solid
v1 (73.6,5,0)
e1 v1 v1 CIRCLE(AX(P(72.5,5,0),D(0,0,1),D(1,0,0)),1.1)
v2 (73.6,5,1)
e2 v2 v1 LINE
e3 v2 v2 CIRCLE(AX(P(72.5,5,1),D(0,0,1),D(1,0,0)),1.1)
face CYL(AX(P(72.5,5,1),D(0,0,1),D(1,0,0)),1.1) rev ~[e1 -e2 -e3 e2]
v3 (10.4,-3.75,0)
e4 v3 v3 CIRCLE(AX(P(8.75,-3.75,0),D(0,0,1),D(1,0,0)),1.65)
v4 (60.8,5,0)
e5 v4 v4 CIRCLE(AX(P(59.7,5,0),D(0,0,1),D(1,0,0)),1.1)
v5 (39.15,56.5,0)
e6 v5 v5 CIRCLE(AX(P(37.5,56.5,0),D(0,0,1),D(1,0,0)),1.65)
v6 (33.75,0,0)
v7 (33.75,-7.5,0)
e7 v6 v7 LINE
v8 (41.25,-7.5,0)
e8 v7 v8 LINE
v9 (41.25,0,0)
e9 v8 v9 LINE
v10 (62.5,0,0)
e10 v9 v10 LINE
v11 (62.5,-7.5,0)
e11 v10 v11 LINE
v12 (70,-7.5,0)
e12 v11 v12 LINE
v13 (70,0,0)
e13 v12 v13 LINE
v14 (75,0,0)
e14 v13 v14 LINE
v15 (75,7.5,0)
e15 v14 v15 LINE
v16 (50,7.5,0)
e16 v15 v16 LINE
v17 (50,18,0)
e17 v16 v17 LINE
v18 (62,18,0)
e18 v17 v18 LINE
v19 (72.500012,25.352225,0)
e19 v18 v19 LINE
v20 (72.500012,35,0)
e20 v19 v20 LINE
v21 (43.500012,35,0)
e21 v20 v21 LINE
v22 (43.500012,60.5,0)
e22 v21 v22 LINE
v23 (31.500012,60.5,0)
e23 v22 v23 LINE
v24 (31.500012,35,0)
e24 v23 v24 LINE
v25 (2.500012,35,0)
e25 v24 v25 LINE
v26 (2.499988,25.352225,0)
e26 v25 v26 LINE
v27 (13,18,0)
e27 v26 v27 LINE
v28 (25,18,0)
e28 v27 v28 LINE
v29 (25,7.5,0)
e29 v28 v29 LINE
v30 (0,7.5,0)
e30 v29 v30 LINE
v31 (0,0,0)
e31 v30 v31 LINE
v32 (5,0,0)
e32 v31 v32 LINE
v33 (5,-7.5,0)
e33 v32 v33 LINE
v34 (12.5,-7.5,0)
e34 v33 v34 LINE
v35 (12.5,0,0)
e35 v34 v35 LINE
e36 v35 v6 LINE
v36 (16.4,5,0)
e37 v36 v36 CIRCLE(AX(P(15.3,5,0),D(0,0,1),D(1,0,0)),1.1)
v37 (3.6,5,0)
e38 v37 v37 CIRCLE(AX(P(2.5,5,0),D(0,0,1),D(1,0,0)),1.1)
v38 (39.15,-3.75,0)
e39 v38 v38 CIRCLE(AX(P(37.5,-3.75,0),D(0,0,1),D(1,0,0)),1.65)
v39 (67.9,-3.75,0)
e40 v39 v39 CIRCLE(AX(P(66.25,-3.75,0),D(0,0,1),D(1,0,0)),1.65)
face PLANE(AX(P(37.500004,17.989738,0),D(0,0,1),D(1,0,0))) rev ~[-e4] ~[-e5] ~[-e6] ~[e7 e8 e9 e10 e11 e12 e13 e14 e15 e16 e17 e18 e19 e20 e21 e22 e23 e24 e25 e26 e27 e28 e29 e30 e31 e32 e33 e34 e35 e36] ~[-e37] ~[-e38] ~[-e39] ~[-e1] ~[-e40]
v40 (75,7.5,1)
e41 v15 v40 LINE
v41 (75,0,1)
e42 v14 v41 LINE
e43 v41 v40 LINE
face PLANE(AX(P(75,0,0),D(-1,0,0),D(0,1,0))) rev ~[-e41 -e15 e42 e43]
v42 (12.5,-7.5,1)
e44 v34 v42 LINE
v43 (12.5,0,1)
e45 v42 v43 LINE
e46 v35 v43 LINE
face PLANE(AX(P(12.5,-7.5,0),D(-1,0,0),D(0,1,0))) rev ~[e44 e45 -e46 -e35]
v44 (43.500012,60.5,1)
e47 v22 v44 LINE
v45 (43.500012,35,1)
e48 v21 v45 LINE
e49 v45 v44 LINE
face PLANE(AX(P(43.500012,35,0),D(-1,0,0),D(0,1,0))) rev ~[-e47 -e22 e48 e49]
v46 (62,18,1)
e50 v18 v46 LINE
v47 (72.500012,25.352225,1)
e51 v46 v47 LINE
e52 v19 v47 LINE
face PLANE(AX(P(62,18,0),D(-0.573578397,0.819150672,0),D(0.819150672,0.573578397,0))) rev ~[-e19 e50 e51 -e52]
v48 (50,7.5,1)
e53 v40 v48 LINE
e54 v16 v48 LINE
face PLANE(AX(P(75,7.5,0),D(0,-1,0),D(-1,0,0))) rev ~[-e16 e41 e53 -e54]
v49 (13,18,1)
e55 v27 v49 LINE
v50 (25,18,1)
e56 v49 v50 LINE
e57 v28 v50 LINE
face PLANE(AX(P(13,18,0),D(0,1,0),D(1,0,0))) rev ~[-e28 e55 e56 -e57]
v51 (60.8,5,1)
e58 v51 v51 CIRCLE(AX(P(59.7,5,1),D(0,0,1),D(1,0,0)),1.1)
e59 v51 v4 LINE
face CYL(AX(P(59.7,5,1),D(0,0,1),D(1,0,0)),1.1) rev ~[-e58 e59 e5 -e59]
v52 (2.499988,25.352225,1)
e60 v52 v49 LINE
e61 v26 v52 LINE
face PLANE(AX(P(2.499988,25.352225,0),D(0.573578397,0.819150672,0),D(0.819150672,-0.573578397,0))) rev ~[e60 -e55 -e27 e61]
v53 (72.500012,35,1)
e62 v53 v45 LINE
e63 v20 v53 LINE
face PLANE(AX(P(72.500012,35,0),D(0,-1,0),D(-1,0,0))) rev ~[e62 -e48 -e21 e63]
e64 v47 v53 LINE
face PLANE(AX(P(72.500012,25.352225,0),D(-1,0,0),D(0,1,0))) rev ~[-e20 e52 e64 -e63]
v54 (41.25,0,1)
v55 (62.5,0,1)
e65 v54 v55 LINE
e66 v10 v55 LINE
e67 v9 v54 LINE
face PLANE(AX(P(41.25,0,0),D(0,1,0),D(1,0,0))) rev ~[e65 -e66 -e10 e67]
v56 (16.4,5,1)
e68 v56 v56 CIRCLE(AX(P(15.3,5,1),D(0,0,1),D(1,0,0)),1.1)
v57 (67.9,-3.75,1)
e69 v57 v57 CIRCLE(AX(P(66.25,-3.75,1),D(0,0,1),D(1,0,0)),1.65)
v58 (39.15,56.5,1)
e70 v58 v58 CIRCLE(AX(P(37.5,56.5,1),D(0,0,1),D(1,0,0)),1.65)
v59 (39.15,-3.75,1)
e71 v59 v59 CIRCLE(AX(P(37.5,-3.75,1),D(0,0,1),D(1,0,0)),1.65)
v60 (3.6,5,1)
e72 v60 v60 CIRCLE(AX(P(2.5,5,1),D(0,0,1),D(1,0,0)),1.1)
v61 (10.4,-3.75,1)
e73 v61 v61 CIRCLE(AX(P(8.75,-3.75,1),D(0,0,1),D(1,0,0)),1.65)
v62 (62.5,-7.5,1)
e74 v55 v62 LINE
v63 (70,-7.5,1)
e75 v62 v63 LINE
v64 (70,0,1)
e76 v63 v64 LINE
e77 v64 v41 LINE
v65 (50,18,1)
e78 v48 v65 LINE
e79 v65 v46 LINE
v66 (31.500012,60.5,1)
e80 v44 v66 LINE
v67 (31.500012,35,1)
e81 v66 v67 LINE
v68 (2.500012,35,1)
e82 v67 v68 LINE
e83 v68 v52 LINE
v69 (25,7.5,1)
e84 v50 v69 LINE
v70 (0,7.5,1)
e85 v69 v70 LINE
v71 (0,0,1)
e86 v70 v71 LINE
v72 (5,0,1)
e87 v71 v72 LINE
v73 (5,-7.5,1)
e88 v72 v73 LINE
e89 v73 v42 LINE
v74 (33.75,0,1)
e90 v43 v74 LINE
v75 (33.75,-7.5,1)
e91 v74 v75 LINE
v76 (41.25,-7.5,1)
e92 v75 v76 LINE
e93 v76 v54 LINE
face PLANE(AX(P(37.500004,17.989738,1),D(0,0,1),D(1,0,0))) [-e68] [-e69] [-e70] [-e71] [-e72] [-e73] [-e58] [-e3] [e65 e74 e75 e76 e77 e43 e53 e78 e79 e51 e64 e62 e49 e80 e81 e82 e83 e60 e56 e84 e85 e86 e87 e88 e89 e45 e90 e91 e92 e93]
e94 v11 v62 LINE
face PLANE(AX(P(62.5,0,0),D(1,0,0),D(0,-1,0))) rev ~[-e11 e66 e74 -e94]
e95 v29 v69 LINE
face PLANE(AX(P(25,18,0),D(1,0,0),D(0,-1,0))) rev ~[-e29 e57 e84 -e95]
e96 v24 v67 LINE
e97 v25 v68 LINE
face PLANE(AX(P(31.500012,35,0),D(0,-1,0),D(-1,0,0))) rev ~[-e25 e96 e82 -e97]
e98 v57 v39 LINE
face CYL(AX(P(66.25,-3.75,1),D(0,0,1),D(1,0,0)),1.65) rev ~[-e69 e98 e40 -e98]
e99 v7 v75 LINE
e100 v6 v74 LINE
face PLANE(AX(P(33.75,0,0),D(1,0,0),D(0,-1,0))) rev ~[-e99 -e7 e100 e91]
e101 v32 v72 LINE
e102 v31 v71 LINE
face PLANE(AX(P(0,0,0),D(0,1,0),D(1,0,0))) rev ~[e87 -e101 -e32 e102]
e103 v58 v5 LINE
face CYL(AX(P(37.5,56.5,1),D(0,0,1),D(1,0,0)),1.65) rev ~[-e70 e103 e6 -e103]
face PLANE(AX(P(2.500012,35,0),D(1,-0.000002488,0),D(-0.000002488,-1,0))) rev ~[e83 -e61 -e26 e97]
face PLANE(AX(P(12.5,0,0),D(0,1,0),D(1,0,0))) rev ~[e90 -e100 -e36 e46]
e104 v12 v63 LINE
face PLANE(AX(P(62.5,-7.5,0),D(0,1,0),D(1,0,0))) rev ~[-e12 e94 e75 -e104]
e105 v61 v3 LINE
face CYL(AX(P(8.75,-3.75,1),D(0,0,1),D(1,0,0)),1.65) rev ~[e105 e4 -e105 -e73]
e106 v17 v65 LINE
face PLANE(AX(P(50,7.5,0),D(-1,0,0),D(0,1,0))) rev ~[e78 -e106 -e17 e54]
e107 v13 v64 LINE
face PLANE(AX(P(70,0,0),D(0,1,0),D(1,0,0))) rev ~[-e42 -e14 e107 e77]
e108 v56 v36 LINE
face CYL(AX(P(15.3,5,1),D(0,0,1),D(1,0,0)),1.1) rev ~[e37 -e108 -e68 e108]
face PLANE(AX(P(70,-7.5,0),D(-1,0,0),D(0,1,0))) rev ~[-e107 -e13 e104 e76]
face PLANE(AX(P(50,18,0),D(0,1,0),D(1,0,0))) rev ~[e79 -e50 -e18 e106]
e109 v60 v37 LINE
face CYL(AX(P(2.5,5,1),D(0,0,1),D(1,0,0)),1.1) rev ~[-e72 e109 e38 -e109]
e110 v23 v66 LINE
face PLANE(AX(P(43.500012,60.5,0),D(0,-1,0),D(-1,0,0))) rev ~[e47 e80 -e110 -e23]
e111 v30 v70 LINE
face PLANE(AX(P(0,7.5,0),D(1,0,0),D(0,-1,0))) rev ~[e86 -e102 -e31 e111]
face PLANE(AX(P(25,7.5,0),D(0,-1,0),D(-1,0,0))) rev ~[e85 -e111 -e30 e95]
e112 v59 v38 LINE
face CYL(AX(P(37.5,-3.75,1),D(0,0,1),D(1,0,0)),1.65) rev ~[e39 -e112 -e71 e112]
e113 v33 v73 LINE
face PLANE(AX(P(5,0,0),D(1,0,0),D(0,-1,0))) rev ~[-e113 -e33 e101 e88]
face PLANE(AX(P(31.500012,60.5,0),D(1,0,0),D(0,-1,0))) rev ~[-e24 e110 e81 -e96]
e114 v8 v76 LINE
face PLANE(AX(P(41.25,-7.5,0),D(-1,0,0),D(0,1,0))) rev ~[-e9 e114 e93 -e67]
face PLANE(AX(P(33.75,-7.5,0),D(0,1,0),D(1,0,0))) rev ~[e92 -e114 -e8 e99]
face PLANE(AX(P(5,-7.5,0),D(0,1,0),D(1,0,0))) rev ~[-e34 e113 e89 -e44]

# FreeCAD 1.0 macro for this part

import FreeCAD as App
import Part
import Sketcher
Q = App.Units.Quantity


def add_polygon(sketch, points):
    """Adds a closed chain of lines whose ends are joined by coincident constraints."""
    first, n = sketch.GeometryCount, len(points)
    for a, b in zip(points, points[1:] + points[:1]):
        sketch.addGeometry(Part.LineSegment(App.Vector(*a, 0), App.Vector(*b, 0)), False)
    for i in range(n):
        sketch.addConstraint(Sketcher.Constraint("Coincident", first + i, 2, first + (i + 1) % n, 1))

doc = App.newDocument("Part")
body = doc.addObject("PartDesign::Body", "Body")

# Sketch on XY plane
sketch1 = body.newObject("Sketcher::SketchObject", "Sketch")
sketch1.AttachmentSupport = (doc.getObject("XY_Plane"), [""])
sketch1.MapMode = "FlatFace"
add_polygon(sketch1, [(0, 0), (5, 0), (5, -8), (12, -8), (12, 0), (34, 0), (34, -8), (41, -8), (41, 0), (62, 0), (62, -8), (70, -8), (70, 0), (75, 0), (75, 8), (50, 8), (50, 18), (62, 18), (73, 25), (73, 35), (44, 35), (44, 60), (32, 60), (32, 35), (3, 35), (2, 25), (13, 18), (25, 18), (25, 8), (0, 8)])  # lines 0-29
sketch1.addConstraint(Sketcher.Constraint("Horizontal", 0))
sketch1.addConstraint(Sketcher.Constraint("Vertical", 1))
sketch1.addConstraint(Sketcher.Constraint("Horizontal", 2))
sketch1.addConstraint(Sketcher.Constraint("Vertical", 3))
sketch1.addConstraint(Sketcher.Constraint("Horizontal", 4))
sketch1.addConstraint(Sketcher.Constraint("Vertical", 5))
sketch1.addConstraint(Sketcher.Constraint("Horizontal", 6))
sketch1.addConstraint(Sketcher.Constraint("Vertical", 7))
sketch1.addConstraint(Sketcher.Constraint("Horizontal", 8))
sketch1.addConstraint(Sketcher.Constraint("Vertical", 9))
sketch1.addConstraint(Sketcher.Constraint("Horizontal", 10))
sketch1.addConstraint(Sketcher.Constraint("Vertical", 11))
sketch1.addConstraint(Sketcher.Constraint("Horizontal", 12))
sketch1.addConstraint(Sketcher.Constraint("Vertical", 13))
sketch1.addConstraint(Sketcher.Constraint("Horizontal", 14))
sketch1.addConstraint(Sketcher.Constraint("Vertical", 15))
sketch1.addConstraint(Sketcher.Constraint("Horizontal", 16))
sketch1.addConstraint(Sketcher.Constraint("Vertical", 18))
sketch1.addConstraint(Sketcher.Constraint("Horizontal", 19))
sketch1.addConstraint(Sketcher.Constraint("Vertical", 20))
sketch1.addConstraint(Sketcher.Constraint("Horizontal", 21))
sketch1.addConstraint(Sketcher.Constraint("Vertical", 22))
sketch1.addConstraint(Sketcher.Constraint("Horizontal", 23))
sketch1.addConstraint(Sketcher.Constraint("Horizontal", 26))
sketch1.addConstraint(Sketcher.Constraint("Vertical", 27))
sketch1.addConstraint(Sketcher.Constraint("Horizontal", 28))
sketch1.addConstraint(Sketcher.Constraint("Vertical", 29))
sketch1.addConstraint(Sketcher.Constraint("Coincident", 29, 2, -1, 1))
sketch1.addConstraint(Sketcher.Constraint("PointOnObject", 3, 2, -1))
sketch1.addConstraint(Sketcher.Constraint("PointOnObject", 7, 2, -1))
sketch1.addConstraint(Sketcher.Constraint("PointOnObject", 11, 2, -1))
sketch1.addConstraint(Sketcher.Constraint("Horizontal", 2, 2, 5, 2))
sketch1.addConstraint(Sketcher.Constraint("Horizontal", 6, 2, 9, 2))
sketch1.addConstraint(Sketcher.Constraint("Horizontal", 19, 2, 22, 2))
sketch1.addConstraint(Sketcher.Constraint("Horizontal", 17, 2, 24, 2))
sketch1.addConstraint(Sketcher.Constraint("Horizontal", 16, 2, 25, 2))
sketch1.addConstraint(Sketcher.Constraint("Horizontal", 14, 2, 27, 2))
sketch1.addConstraint(Sketcher.Constraint("Equal", 2, 6))
sketch1.addConstraint(Sketcher.Constraint("Equal", 4, 8))
sketch1.addConstraint(Sketcher.Constraint("Equal", 6, 10))
sketch1.addConstraint(Sketcher.Constraint("Equal", 0, 12))
sketch1.addConstraint(Sketcher.Constraint("Equal", 16, 21))
sketch1.addConstraint(Sketcher.Constraint("Equal", 19, 23))
sketch1.addConstraint(Sketcher.Constraint("Equal", 21, 26))
sketch1.addConstraint(Sketcher.Constraint("Equal", 14, 28))
sketch1.addConstraint(Sketcher.Constraint("Equal", 10, 1))
sketch1.addConstraint(Sketcher.Constraint("Equal", 11, 13))
sketch1.addConstraint(Sketcher.Constraint("Equal", 17, 25))
sketch1.addConstraint(Sketcher.Constraint("DistanceX", 0, 1, 0, 2, Q("5 mm")))
sketch1.addConstraint(Sketcher.Constraint("DistanceX", 14, 2, 14, 1, Q("25 mm")))
sketch1.addConstraint(Sketcher.Constraint("DistanceX", 16, 1, 16, 2, Q("12 mm")))
sketch1.addConstraint(Sketcher.Constraint("DistanceX", 19, 2, 19, 1, Q("29 mm")))
sketch1.addConstraint(Sketcher.Constraint("DistanceX", 2, 1, 2, 2, Q("7.5 mm")))
sketch1.addConstraint(Sketcher.Constraint("DistanceY", 15, 1, 15, 2, Q("10.5 mm")))
sketch1.addConstraint(Sketcher.Constraint("DistanceY", 20, 1, 20, 2, Q("25.5 mm")))
sketch1.addConstraint(Sketcher.Constraint("DistanceX", -1, 1, 10, 2, Q("70 mm")))
sketch1.addConstraint(Sketcher.Constraint("DistanceY", -1, 1, 18, 2, Q("35 mm")))
sketch1.addConstraint(Sketcher.Constraint("Distance", 17, Q("12.818169 mm")))
sketch1.addConstraint(Sketcher.Constraint("DistanceY", 18, 1, 18, 2, Q("9.647775 mm")))
pad1 = body.newObject("PartDesign::Pad", "Pad")
pad1.Profile = sketch1
pad1.Length = 1

# Sketch on XY plane
sketch2 = body.newObject("Sketcher::SketchObject", "Sketch001")
sketch2.AttachmentSupport = (doc.getObject("XY_Plane"), [""])
sketch2.MapMode = "FlatFace"
sketch2.AttachmentOffset = App.Placement(App.Vector(0, 0, 1), App.Rotation())
sketch2.addGeometry(Part.Circle(App.Vector(2.5, 5, 0), App.Vector(0, 0, 1), 1.1), False)
sketch2.addGeometry(Part.Circle(App.Vector(15.3, 5, 0), App.Vector(0, 0, 1), 1.1), False)
sketch2.addGeometry(Part.Circle(App.Vector(59.7, 5, 0), App.Vector(0, 0, 1), 1.1), False)
sketch2.addGeometry(Part.Circle(App.Vector(72.5, 5, 0), App.Vector(0, 0, 1), 1.1), False)
sketch2.addConstraint(Sketcher.Constraint("Equal", 0, 1))
sketch2.addConstraint(Sketcher.Constraint("Equal", 1, 2))
sketch2.addConstraint(Sketcher.Constraint("Equal", 2, 3))
sketch2.addConstraint(Sketcher.Constraint("Horizontal", 0, 3, 1, 3))
sketch2.addConstraint(Sketcher.Constraint("Horizontal", 1, 3, 2, 3))
sketch2.addConstraint(Sketcher.Constraint("Horizontal", 2, 3, 3, 3))
sketch2.addConstraint(Sketcher.Constraint("Diameter", 0, Q("2.2 mm")))
sketch2.addConstraint(Sketcher.Constraint("DistanceY", -1, 1, 0, 3, Q("5 mm")))
sketch2.addConstraint(Sketcher.Constraint("DistanceX", 0, 3, 3, 3, Q("70 mm")))
sketch2.addConstraint(Sketcher.Constraint("DistanceX", -1, 1, 0, 3, Q("2.5 mm")))
sketch2.addConstraint(Sketcher.Constraint("DistanceX", -1, 1, 1, 3, Q("15.3 mm")))
sketch2.addConstraint(Sketcher.Constraint("DistanceX", -1, 1, 2, 3, Q("59.7 mm")))
pocket1 = body.newObject("PartDesign::Pocket", "Pocket")
pocket1.Profile = sketch2
pocket1.Length = 5

# Sketch on XY plane
sketch3 = body.newObject("Sketcher::SketchObject", "Sketch002")
sketch3.AttachmentSupport = (doc.getObject("XY_Plane"), [""])
sketch3.MapMode = "FlatFace"
sketch3.AttachmentOffset = App.Placement(App.Vector(0, 0, 1), App.Rotation())
sketch3.addGeometry(Part.Circle(App.Vector(8.8, -3.8, 0), App.Vector(0, 0, 1), 1.6), False)
sketch3.addGeometry(Part.Circle(App.Vector(37.5, -3.8, 0), App.Vector(0, 0, 1), 1.6), False)
sketch3.addGeometry(Part.Circle(App.Vector(66.2, -3.8, 0), App.Vector(0, 0, 1), 1.6), False)
sketch3.addGeometry(Part.Circle(App.Vector(37.5, 56.5, 0), App.Vector(0, 0, 1), 1.6), False)
sketch3.addConstraint(Sketcher.Constraint("Equal", 0, 1))
sketch3.addConstraint(Sketcher.Constraint("Equal", 1, 2))
sketch3.addConstraint(Sketcher.Constraint("Equal", 2, 3))
sketch3.addConstraint(Sketcher.Constraint("Horizontal", 0, 3, 1, 3))
sketch3.addConstraint(Sketcher.Constraint("Horizontal", 1, 3, 2, 3))
sketch3.addConstraint(Sketcher.Constraint("Vertical", 1, 3, 3, 3))
sketch3.addConstraint(Sketcher.Constraint("Diameter", 0, Q("3.3 mm")))
sketch3.addConstraint(Sketcher.Constraint("DistanceX", -1, 1, 1, 3, Q("37.5 mm")))
sketch3.addConstraint(Sketcher.Constraint("DistanceY", -1, 1, 3, 3, Q("56.5 mm")))
sketch3.addConstraint(Sketcher.Constraint("DistanceX", 0, 3, 2, 3, Q("57.5 mm")))
sketch3.addConstraint(Sketcher.Constraint("DistanceX", -1, 1, 0, 3, Q("8.75 mm")))
sketch3.addConstraint(Sketcher.Constraint("DistanceY", 0, 3, -1, 1, Q("3.75 mm")))
pocket2 = body.newObject("PartDesign::Pocket", "Pocket001")
pocket2.Profile = sketch3
pocket2.Length = 3

doc.recompute()
